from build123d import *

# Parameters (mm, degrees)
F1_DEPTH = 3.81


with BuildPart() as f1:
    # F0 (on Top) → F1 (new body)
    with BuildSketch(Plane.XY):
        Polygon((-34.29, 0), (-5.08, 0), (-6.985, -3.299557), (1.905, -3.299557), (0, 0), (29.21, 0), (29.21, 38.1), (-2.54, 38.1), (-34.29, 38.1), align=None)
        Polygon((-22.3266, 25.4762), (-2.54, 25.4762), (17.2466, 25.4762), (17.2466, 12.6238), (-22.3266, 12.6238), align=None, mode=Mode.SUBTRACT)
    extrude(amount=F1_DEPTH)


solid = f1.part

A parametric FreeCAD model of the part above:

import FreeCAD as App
import Part
import Sketcher
from FreeCAD import Vector
Q = App.Units.Quantity


def add_polygon(sketch, points):
    """Adds a closed chain of lines whose ends are joined by coincident constraints."""
    first, n = sketch.GeometryCount, len(points)
    for a, b in zip(points, points[1:] + points[:1]):
        sketch.addGeometry(Part.LineSegment(App.Vector(*a, 0), App.Vector(*b, 0)), False)
    for i in range(n):
        sketch.addConstraint(Sketcher.Constraint("Coincident", first + i, 2, first + (i + 1) % n, 1))

doc = App.newDocument("Part")
body = doc.addObject("PartDesign::Body", "Body")

# Sketch on XY plane
sketch1 = doc.addObject("Sketcher::SketchObject", "Sketch")
body.addObject(sketch1)
sketch1.AttachmentSupport = (doc.XY_Plane, [""])
sketch1.MapMode = "FlatFace"
add_polygon(sketch1, [(-34.3, 0), (-5.1, 0), (-7, -3.3), (1.9, -3.3), (0, 0), (29.2, 0), (29.2, 38.1), (-34.3, 38.1)])  # lines 0-7
add_polygon(sketch1, [(-22.3, 12.6), (-22.3, 25.5), (17.2, 25.5), (17.2, 12.6)])  # lines 8-11
sketch1.addConstraint([
    Sketcher.Constraint("Horizontal", 0),
    Sketcher.Constraint("Horizontal", 2),
    Sketcher.Constraint("Horizontal", 4),
    Sketcher.Constraint("Vertical", 5),
    Sketcher.Constraint("Horizontal", 6),
    Sketcher.Constraint("Vertical", 7),
    Sketcher.Constraint("Vertical", 8),
    Sketcher.Constraint("Horizontal", 9),
    Sketcher.Constraint("Vertical", 10),
    Sketcher.Constraint("Horizontal", 11),
    Sketcher.Constraint("Coincident", 3, 2, -1, 1),
    Sketcher.Constraint("PointOnObject", 0, 2, -1),
    Sketcher.Constraint("Equal", 0, 4),
    Sketcher.Constraint("Equal", 1, 3),
    Sketcher.Constraint("DistanceX", 6, 2, 6, 1, Q("2.5 in")),
    Sketcher.Constraint("DistanceY", 5, 1, 5, 2, Q("1.5 in")),
    Sketcher.Constraint("Angle", 1, Q("-119.999998 deg")),
    Sketcher.Constraint("DistanceX", 0, 1, 0, 2, Q("1.15 in")),
    Sketcher.Constraint("DistanceX", 2, 1, 2, 2, Q("0.35 in")),
    Sketcher.Constraint("DistanceX", 9, 1, 9, 2, Q("1.558 in")),
    Sketcher.Constraint("DistanceY", 8, 1, 8, 2, Q("0.506 in")),
    Sketcher.Constraint("DistanceX", 8, 2, -1, 1, Q("0.879 in")),
    Sketcher.Constraint("DistanceY", -1, 1, 8, 2, Q("1.003 in")),
])
pad1 = doc.addObject("PartDesign::Pad", "Pad")
body.addObject(pad1)
pad1.Profile = sketch1
pad1.Length = Q("0.15 in")

doc.recompute()
